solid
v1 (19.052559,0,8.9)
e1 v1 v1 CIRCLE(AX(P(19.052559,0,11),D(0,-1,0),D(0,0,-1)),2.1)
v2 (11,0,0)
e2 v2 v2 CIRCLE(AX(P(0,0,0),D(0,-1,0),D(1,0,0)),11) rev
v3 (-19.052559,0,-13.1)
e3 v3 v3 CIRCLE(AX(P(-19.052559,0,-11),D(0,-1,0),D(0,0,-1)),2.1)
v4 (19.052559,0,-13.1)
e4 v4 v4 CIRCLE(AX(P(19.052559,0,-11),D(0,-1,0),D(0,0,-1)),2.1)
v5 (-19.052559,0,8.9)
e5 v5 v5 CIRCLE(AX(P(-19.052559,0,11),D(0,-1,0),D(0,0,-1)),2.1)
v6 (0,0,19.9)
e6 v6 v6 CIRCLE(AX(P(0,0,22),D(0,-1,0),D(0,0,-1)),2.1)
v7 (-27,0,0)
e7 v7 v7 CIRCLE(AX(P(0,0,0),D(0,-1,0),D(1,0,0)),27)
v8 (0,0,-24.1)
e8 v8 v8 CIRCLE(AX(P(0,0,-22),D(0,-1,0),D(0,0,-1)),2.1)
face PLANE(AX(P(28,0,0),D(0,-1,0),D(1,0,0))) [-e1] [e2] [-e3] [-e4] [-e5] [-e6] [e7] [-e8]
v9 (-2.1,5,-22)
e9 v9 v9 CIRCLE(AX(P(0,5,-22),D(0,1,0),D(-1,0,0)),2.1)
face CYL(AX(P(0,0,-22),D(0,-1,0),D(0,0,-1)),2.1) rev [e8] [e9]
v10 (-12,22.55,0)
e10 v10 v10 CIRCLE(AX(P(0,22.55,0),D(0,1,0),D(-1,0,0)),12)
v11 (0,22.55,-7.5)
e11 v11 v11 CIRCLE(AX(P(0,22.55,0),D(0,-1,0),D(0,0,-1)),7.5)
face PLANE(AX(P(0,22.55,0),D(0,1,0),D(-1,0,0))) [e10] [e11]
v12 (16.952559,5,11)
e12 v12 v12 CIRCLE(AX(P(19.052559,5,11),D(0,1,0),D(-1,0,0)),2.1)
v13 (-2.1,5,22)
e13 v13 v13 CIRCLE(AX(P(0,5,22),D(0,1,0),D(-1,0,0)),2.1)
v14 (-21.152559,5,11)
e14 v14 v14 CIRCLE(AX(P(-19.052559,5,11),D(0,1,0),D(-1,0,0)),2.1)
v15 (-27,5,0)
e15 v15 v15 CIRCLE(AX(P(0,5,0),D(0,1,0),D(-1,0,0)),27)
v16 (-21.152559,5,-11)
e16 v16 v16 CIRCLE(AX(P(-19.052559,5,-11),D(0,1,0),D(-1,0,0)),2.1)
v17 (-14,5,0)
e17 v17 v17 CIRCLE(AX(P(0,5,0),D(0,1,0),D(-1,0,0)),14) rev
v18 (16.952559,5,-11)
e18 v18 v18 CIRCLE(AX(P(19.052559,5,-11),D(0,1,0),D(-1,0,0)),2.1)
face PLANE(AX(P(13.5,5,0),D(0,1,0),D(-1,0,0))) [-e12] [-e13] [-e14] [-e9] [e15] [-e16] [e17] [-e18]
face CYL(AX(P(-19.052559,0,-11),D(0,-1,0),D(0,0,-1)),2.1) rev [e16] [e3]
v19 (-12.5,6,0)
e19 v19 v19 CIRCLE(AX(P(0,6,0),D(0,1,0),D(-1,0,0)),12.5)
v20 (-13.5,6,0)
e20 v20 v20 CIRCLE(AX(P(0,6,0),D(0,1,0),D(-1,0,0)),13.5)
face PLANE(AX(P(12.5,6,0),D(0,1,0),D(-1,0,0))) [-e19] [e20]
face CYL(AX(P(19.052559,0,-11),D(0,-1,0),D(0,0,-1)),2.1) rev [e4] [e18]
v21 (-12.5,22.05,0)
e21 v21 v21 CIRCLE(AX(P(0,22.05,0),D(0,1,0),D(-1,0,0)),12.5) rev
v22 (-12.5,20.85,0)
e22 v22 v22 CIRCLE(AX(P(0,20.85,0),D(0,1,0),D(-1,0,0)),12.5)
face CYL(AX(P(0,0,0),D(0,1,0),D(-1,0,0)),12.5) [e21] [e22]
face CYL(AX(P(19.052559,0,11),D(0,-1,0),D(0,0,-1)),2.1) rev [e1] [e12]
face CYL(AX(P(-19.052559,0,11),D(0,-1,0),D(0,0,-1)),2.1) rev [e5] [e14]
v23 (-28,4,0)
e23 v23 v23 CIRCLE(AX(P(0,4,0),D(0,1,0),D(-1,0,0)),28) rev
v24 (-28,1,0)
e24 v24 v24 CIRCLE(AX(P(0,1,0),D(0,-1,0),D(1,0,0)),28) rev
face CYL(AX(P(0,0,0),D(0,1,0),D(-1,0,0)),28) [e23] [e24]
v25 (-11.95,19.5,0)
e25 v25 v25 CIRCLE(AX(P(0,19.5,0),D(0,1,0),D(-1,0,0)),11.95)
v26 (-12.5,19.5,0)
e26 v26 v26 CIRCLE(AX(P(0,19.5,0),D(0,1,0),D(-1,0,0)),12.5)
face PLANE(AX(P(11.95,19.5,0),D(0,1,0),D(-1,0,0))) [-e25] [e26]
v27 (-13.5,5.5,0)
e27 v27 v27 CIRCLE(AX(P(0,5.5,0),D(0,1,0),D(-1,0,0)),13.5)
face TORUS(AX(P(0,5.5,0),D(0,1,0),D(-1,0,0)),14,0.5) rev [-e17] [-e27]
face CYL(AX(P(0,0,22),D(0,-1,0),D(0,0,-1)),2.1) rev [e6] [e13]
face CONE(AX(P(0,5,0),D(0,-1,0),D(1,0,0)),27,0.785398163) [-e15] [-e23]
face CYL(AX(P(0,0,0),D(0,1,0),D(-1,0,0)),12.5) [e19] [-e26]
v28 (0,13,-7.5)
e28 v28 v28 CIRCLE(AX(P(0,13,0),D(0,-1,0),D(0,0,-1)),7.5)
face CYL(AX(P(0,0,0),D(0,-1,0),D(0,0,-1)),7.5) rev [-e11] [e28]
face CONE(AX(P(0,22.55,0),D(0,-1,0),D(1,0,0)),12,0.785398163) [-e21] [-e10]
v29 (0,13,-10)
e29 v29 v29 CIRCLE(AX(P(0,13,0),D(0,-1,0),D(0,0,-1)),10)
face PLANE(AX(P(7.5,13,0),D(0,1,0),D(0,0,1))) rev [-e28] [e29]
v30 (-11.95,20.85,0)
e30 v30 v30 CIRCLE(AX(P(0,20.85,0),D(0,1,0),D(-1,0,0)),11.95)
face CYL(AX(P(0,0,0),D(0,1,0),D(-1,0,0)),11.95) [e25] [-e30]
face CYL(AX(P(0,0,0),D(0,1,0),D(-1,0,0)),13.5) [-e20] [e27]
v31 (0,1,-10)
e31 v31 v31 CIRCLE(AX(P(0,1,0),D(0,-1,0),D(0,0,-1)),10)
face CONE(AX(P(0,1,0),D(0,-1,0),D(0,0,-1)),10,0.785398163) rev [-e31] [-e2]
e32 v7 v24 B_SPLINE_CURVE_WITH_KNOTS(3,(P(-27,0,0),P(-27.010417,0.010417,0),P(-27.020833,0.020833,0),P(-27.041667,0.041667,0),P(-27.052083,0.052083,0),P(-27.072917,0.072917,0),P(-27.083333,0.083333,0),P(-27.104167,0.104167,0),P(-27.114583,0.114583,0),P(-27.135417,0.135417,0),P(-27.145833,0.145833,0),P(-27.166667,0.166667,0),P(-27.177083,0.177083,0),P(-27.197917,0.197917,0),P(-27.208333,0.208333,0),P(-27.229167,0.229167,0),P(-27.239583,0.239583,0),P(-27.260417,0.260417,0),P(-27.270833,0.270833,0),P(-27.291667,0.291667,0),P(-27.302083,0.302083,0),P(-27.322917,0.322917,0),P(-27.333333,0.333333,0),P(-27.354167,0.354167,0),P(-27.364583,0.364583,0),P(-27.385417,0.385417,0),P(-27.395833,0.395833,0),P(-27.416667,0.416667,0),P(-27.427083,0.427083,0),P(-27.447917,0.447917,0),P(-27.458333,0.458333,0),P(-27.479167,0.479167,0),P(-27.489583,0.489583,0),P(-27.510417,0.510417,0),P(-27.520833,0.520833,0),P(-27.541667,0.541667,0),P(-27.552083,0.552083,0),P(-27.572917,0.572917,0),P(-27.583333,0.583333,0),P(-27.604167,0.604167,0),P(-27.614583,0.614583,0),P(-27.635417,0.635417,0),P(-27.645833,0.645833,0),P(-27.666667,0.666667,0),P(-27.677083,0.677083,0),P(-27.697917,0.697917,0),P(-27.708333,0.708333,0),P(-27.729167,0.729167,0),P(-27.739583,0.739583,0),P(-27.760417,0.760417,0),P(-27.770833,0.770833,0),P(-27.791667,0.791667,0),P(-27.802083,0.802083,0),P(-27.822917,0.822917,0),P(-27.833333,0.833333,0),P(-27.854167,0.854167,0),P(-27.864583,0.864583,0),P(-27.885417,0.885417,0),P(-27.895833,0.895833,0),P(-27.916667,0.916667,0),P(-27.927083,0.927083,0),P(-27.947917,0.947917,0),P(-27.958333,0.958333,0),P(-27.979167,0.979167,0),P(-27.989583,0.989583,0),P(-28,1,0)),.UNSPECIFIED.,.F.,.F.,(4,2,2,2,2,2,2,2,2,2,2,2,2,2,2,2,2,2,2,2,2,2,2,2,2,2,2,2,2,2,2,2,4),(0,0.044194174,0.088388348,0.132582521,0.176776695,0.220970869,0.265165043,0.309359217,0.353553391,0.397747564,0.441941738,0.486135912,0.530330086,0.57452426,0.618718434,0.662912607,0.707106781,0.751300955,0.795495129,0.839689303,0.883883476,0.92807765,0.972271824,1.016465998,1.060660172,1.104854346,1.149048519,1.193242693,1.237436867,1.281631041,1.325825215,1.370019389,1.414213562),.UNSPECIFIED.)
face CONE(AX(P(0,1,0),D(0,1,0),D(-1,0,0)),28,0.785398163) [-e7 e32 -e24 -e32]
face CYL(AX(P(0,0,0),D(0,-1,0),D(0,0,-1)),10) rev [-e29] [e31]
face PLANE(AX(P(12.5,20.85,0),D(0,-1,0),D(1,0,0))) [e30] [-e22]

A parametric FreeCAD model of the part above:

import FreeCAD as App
import Part
import Sketcher

V = App.Vector
Q = App.Units.Quantity


def edges_at(feature, points):
    """Names of the edges that pass closest to the given points."""
    edges = feature.Shape.Edges
    near = lambda p: min(range(len(edges)), key=lambda i: edges[i].distToShape(Part.Vertex(*p))[0])
    return sorted({f"Edge{near(p) + 1}" for p in points})

doc = App.newDocument("Part")
body = doc.addObject("PartDesign::Body", "Body")

# Sketch on XY plane
sketch1 = body.newObject("Sketcher::SketchObject", "Sketch")
sketch1.AttachmentSupport = (doc.getObject("XY_Plane"), [""])
sketch1.MapMode = "FlatFace"
sketch1.addGeometry([
    Part.LineSegment(V(28, 0, 0), V(0, 0, 0)),  # 0
    Part.LineSegment(V(0, 0, 0), V(0, 22.55, 0)),  # 1
    Part.LineSegment(V(0, 22.55, 0), V(12.5, 22.55, 0)),  # 2
    Part.LineSegment(V(12.5, 22.55, 0), V(12.5, 20.85, 0)),  # 3
    Part.LineSegment(V(12.5, 20.85, 0), V(11.95, 20.85, 0)),  # 4
    Part.LineSegment(V(11.95, 20.85, 0), V(11.95, 19.5, 0)),  # 5
    Part.LineSegment(V(11.95, 19.5, 0), V(12.5, 19.5, 0)),  # 6
    Part.LineSegment(V(12.5, 19.5, 0), V(12.5, 6, 0)),  # 7
    Part.LineSegment(V(12.5, 6, 0), V(13.5, 6, 0)),  # 8
    Part.LineSegment(V(13.5, 6, 0), V(13.5, 5, 0)),  # 9
    Part.LineSegment(V(13.5, 5, 0), V(28, 5, 0)),  # 10
    Part.LineSegment(V(28, 5, 0), V(28, 0, 0)),  # 11
], False)
sketch1.addConstraint([
    Sketcher.Constraint("Coincident", 0, 2, 1, 1),
    Sketcher.Constraint("Coincident", 1, 2, 2, 1),
    Sketcher.Constraint("Coincident", 2, 2, 3, 1),
    Sketcher.Constraint("Coincident", 3, 2, 4, 1),
    Sketcher.Constraint("Coincident", 4, 2, 5, 1),
    Sketcher.Constraint("Coincident", 5, 2, 6, 1),
    Sketcher.Constraint("Coincident", 6, 2, 7, 1),
    Sketcher.Constraint("Coincident", 7, 2, 8, 1),
    Sketcher.Constraint("Coincident", 8, 2, 9, 1),
    Sketcher.Constraint("Coincident", 9, 2, 10, 1),
    Sketcher.Constraint("Coincident", 10, 2, 11, 1),
    Sketcher.Constraint("Coincident", 11, 2, 0, 1),
    Sketcher.Constraint("Horizontal", 0),
    Sketcher.Constraint("Vertical", 1),
    Sketcher.Constraint("Horizontal", 2),
    Sketcher.Constraint("Vertical", 3),
    Sketcher.Constraint("Horizontal", 4),
    Sketcher.Constraint("Vertical", 5),
    Sketcher.Constraint("Horizontal", 6),
    Sketcher.Constraint("Vertical", 7),
    Sketcher.Constraint("Horizontal", 8),
    Sketcher.Constraint("Vertical", 9),
    Sketcher.Constraint("Horizontal", 10),
    Sketcher.Constraint("Vertical", 11),
    Sketcher.Constraint("Coincident", 0, 2, -1, 1),
    Sketcher.Constraint("Vertical", 3, 2, 6, 2),
    Sketcher.Constraint("Equal", 8, 9),
    Sketcher.Constraint("DistanceX", 0, 2, 0, 1, Q("28 mm")),
    Sketcher.Constraint("DistanceX", 8, 1, 8, 2, Q("1 mm")),
    Sketcher.Constraint("DistanceY", 11, 2, 11, 1, Q("5 mm")),
    Sketcher.Constraint("DistanceX", 2, 1, 2, 2, Q("12.5 mm")),
    Sketcher.Constraint("DistanceY", 3, 2, 3, 1, Q("1.7 mm")),
    Sketcher.Constraint("DistanceY", 7, 2, 7, 1, Q("13.5 mm")),
    Sketcher.Constraint("DistanceX", 4, 2, 4, 1, Q("0.55 mm")),
    Sketcher.Constraint("DistanceY", 1, 1, 1, 2, Q("22.55 mm")),
])
revolution = body.newObject("PartDesign::Revolution", "Revolution")
revolution.Profile = sketch1
revolution.ReferenceAxis = (sketch1, ["V_Axis"])
revolution.Angle = 360

# Sketch on XZ plane
sketch2 = body.newObject("Sketcher::SketchObject", "Sketch001")
sketch2.AttachmentSupport = (doc.getObject("XZ_Plane"), [""])
sketch2.MapMode = "FlatFace"
sketch2.addGeometry([
    Part.Circle(V(0, 22, 0), V(0, 0, 1), 2.1),  # 0
    Part.Circle(V(19.052559, 11, 0), V(0, 0, 1), 2.1),  # 1
    Part.Circle(V(19.052559, -11, 0), V(0, 0, 1), 2.1),  # 2
    Part.Circle(V(0, -22, 0), V(0, 0, 1), 2.1),  # 3
    Part.Circle(V(-19.052559, -11, 0), V(0, 0, 1), 2.1),  # 4
    Part.Circle(V(-19.052559, 11, 0), V(0, 0, 1), 2.1),  # 5
], False)
sketch2.addConstraint([
    Sketcher.Constraint("Equal", 0, 1),
    Sketcher.Constraint("Equal", 1, 2),
    Sketcher.Constraint("Equal", 2, 3),
    Sketcher.Constraint("Equal", 3, 4),
    Sketcher.Constraint("Equal", 4, 5),
    Sketcher.Constraint("Symmetric", 0, 3, 3, 3, -1, 1),
    Sketcher.Constraint("Symmetric", 1, 3, 4, 3, -1, 1),
    Sketcher.Constraint("Symmetric", 2, 3, 5, 3, -1, 1),
    Sketcher.Constraint("Symmetric", 2, 3, 4, 3, -2),
    Sketcher.Constraint("PointOnObject", 0, 3, -2),
    Sketcher.Constraint("Diameter", 0, Q("4.2 mm")),
    Sketcher.Constraint("DistanceY", -1, 1, 0, 3, Q("22 mm")),
    Sketcher.Constraint("DistanceY", -1, 1, 1, 3, Q("11 mm")),
    Sketcher.Constraint("DistanceX", -1, 1, 1, 3, Q("19.052559 mm")),
])
doc.recompute()
hole = body.newObject("PartDesign::Hole", "Hole")
hole.Profile = sketch2
hole.ThreadType = "None"
hole.Diameter = 4.2
hole.DepthType = "ThroughAll"

# Sketch on XZ plane
sketch3 = body.newObject("Sketcher::SketchObject", "Sketch002")
sketch3.AttachmentSupport = (doc.getObject("XZ_Plane"), [""])
sketch3.MapMode = "FlatFace"
sketch3.addGeometry(Part.Circle(V(0, 0, 0), V(0, 0, 1), 7.5), False)
sketch3.addConstraint([
    Sketcher.Constraint("Coincident", 0, 3, -1, 1),
    Sketcher.Constraint("Diameter", 0, Q("15 mm")),
])
doc.recompute()
hole2 = body.newObject("PartDesign::Hole", "Hole001")
hole2.Profile = sketch3
hole2.ThreadType = "None"
hole2.Diameter = 15
hole2.DepthType = "ThroughAll"
hole2.HoleCutType = "Counterbore"
hole2.HoleCutDiameter = 20
hole2.HoleCutDepth = 13
doc.recompute()

chamfer = body.newObject("PartDesign::Chamfer", "Chamfer")
chamfer.Base = (hole2, edges_at(hole2, [(12.5, 22.55, 0)]))
chamfer.Size = 0.5
doc.recompute()

chamfer2 = body.newObject("PartDesign::Chamfer", "Chamfer001")
chamfer2.Base = (chamfer, edges_at(chamfer, [(28, 0, 0), (10, 0, 0), (28, 5, 0)]))
chamfer2.Size = 1
doc.recompute()

fillet = body.newObject("PartDesign::Fillet", "Fillet")
fillet.Base = (chamfer2, edges_at(chamfer2, [(13.5, 5, 0)]))
fillet.Radius = 0.5

doc.recompute()
